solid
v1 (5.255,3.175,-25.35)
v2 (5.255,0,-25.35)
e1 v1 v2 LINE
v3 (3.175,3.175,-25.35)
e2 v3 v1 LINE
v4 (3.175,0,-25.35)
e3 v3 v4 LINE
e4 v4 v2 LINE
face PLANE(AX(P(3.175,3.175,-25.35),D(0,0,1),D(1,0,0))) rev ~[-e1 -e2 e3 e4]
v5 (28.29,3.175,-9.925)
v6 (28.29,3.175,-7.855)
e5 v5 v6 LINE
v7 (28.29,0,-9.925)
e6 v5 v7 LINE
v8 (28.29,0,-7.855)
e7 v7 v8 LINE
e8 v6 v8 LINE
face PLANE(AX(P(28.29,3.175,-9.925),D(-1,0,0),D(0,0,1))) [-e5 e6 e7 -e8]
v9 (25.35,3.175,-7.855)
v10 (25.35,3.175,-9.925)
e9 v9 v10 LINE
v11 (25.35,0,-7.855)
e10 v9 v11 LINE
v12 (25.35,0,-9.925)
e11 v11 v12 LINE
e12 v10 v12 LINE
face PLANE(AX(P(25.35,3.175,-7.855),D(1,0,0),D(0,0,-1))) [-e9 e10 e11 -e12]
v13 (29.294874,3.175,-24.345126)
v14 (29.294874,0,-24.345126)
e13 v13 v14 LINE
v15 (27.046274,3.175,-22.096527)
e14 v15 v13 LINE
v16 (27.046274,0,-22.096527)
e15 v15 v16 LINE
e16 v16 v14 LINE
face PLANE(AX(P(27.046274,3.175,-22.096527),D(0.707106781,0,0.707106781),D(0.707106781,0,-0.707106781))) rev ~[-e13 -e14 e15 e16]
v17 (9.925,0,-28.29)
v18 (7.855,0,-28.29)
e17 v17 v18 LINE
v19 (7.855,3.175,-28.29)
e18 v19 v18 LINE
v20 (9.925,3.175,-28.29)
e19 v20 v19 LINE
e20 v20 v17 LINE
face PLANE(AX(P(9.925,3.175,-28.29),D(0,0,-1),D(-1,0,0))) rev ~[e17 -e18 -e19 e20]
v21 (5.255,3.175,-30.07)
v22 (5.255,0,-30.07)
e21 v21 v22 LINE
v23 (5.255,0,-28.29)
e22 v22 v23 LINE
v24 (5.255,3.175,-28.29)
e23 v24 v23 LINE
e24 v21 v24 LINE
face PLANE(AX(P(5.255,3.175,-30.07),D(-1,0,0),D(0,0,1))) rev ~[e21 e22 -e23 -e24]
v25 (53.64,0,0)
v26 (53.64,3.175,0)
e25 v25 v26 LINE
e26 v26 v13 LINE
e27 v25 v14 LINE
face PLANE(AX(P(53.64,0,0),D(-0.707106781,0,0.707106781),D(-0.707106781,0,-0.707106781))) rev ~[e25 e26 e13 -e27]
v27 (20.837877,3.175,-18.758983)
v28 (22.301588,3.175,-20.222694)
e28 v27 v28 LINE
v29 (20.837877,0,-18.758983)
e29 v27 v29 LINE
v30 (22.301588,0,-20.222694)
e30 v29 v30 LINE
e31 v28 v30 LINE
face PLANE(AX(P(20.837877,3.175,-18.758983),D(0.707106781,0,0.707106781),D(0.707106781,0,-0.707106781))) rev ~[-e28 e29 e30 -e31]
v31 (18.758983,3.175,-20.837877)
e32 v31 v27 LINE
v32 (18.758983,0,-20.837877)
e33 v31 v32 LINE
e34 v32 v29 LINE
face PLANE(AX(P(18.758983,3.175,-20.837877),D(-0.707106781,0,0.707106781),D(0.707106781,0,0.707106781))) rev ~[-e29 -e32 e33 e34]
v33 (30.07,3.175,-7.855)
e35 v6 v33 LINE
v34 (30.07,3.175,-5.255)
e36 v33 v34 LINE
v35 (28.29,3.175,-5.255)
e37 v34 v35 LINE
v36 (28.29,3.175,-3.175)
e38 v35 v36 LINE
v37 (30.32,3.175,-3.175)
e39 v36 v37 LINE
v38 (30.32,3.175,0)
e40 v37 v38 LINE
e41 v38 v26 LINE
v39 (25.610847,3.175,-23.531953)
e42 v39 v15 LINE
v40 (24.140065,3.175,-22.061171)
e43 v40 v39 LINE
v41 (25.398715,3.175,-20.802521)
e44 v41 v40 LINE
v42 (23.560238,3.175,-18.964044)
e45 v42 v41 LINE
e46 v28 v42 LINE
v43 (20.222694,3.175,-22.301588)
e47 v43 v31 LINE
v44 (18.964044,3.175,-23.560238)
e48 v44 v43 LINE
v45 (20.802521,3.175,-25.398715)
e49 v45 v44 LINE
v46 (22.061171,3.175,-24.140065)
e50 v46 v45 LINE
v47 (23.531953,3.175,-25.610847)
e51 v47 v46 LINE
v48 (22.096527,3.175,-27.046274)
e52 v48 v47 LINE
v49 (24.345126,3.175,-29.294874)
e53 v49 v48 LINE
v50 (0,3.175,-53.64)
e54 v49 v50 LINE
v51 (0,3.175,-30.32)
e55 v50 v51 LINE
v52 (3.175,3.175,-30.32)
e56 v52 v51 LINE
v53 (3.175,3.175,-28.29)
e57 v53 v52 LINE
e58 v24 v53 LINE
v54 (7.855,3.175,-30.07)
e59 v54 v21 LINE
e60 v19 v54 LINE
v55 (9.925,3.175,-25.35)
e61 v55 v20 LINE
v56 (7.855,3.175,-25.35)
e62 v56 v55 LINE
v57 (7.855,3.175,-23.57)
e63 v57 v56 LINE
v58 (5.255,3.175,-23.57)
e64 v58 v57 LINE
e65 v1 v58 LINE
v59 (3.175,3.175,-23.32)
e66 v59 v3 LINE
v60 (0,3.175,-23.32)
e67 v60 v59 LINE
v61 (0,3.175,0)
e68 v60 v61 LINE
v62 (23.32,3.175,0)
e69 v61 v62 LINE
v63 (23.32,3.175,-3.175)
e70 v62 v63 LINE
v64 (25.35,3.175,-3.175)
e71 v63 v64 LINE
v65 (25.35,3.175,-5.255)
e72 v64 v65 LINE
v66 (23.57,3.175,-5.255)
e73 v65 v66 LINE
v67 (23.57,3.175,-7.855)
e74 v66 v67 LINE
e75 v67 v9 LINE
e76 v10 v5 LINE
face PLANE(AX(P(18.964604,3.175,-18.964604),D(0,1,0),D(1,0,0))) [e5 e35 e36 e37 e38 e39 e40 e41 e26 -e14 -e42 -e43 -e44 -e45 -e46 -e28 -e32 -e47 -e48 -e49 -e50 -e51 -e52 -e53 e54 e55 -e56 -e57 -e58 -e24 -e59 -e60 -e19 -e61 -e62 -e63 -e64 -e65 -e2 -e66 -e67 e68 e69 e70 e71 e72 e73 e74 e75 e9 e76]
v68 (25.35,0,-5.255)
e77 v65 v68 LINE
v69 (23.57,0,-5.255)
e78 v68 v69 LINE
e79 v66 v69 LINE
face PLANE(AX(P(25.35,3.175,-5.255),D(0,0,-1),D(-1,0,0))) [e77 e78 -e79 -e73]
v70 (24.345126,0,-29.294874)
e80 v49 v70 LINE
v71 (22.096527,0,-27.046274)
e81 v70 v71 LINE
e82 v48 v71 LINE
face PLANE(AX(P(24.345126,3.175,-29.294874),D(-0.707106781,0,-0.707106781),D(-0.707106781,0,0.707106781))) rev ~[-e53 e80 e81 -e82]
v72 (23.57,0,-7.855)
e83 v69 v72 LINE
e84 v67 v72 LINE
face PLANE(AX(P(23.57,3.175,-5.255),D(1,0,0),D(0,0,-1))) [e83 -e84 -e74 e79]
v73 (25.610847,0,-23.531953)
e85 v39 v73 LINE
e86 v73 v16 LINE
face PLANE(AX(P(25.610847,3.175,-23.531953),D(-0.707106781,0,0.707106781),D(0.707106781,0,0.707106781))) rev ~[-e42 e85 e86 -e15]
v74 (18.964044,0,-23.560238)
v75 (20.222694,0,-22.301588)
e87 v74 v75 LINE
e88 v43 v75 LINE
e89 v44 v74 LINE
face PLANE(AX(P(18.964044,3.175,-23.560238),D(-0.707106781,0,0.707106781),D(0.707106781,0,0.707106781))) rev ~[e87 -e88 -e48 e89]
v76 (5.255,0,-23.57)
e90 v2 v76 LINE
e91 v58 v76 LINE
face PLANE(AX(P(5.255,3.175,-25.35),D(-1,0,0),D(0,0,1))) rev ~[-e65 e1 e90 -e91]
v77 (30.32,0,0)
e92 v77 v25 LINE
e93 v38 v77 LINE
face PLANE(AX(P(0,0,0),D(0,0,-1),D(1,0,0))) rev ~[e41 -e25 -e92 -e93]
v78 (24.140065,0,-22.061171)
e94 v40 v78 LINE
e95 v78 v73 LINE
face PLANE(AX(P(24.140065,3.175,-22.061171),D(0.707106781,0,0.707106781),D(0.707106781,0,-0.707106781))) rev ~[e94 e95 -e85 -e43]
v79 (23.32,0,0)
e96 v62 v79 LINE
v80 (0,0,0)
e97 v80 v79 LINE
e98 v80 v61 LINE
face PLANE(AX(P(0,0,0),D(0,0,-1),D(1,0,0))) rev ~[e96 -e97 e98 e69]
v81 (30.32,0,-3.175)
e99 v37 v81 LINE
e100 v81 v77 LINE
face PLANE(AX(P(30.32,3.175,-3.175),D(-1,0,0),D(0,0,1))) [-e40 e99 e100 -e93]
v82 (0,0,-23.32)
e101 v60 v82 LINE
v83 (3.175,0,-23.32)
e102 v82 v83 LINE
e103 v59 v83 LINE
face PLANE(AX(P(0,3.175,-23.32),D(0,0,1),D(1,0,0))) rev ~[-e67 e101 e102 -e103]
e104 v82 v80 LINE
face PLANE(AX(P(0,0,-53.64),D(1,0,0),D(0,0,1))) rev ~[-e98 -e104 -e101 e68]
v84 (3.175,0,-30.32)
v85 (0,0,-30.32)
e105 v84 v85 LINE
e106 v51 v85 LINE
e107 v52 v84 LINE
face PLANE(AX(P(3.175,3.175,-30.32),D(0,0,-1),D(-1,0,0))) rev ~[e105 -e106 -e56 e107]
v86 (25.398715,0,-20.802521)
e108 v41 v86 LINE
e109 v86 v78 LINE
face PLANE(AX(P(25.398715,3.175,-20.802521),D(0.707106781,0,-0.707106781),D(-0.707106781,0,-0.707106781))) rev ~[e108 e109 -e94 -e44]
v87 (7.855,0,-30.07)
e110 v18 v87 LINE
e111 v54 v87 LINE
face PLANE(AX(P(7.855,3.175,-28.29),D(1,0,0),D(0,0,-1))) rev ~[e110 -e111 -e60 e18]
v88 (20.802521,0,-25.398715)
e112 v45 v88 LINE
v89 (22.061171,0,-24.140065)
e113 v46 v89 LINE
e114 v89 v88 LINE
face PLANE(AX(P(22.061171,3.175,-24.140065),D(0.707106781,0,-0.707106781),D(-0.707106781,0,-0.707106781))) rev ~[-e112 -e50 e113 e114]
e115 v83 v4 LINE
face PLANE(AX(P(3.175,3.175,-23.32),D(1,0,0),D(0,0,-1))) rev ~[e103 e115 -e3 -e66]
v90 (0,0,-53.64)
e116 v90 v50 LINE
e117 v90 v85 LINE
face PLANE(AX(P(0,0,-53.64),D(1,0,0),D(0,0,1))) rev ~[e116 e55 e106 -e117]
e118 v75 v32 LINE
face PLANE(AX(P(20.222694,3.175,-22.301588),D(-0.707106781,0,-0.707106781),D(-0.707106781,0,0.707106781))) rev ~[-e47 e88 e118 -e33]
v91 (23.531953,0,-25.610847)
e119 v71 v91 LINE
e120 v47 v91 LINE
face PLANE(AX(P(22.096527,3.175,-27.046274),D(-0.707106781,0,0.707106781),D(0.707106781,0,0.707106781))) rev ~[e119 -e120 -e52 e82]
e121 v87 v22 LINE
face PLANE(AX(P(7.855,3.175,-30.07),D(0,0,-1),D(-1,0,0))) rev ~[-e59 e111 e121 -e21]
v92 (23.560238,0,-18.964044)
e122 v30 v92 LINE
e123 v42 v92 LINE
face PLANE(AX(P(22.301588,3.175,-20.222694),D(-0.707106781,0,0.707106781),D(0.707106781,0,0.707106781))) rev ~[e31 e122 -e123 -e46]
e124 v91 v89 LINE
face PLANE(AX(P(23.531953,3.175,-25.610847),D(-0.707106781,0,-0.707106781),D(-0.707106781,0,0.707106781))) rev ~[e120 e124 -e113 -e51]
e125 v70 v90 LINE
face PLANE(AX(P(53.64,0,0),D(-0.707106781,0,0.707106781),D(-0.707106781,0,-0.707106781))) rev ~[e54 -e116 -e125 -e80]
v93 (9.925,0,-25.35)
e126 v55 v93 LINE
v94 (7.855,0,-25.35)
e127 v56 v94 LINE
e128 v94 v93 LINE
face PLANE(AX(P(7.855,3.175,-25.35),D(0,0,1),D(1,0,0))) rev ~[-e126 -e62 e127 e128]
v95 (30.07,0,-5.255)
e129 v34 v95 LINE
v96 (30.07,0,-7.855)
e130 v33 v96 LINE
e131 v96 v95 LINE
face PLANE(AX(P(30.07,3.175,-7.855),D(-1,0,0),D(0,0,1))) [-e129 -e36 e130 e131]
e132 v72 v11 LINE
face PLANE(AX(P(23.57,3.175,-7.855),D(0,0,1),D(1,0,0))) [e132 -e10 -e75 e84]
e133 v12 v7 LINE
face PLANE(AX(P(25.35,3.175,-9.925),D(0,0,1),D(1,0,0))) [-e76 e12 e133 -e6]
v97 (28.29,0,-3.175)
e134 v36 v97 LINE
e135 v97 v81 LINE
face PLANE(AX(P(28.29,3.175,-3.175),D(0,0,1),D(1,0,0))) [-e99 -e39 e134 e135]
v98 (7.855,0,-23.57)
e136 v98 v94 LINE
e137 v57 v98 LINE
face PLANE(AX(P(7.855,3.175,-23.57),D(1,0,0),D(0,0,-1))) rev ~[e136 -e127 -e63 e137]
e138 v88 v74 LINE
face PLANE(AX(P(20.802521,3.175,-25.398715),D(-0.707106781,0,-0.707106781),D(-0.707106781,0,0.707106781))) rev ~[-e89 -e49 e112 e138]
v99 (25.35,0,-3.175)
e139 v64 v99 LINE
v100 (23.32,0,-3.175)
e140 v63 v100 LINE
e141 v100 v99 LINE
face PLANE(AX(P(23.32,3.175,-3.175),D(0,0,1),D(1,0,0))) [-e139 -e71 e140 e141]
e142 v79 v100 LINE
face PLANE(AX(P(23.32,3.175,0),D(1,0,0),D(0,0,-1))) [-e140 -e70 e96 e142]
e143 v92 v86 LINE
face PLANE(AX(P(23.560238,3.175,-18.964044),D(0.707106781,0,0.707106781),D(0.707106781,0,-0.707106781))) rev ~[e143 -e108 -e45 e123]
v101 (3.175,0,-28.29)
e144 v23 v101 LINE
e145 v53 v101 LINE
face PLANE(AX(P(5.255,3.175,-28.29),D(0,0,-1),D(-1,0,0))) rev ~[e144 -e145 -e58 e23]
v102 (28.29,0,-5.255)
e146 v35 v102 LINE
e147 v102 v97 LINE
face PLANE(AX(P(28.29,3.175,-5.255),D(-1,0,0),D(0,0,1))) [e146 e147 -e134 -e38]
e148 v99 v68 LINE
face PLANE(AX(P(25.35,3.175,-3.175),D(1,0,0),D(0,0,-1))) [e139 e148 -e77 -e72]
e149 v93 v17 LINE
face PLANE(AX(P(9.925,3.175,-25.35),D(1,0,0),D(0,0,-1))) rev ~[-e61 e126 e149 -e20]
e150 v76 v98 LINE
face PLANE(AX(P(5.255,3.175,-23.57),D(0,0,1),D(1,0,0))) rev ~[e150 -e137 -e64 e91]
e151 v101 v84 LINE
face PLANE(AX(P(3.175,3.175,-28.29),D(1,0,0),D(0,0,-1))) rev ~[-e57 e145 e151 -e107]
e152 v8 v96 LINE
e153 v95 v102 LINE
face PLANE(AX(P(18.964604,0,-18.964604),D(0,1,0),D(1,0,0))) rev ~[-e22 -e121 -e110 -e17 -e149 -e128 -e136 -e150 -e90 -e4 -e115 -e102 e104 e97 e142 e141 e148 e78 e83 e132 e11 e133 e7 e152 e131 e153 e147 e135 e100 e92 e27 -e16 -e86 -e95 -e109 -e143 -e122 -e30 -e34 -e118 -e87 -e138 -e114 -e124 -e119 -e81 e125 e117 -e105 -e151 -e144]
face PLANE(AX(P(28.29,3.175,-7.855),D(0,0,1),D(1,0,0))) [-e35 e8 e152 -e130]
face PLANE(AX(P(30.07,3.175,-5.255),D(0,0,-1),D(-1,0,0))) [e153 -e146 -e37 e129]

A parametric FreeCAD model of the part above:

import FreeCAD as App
import Part
import Sketcher
Q = App.Units.Quantity


def add_polygon(sketch, points):
    """Adds a closed chain of lines whose ends are joined by coincident constraints."""
    first, n = sketch.GeometryCount, len(points)
    for a, b in zip(points, points[1:] + points[:1]):
        sketch.addGeometry(Part.LineSegment(App.Vector(*a, 0), App.Vector(*b, 0)), False)
    for i in range(n):
        sketch.addConstraint(Sketcher.Constraint("Coincident", first + i, 2, first + (i + 1) % n, 1))

doc = App.newDocument("Part")
body = doc.addObject("PartDesign::Body", "Body")

# Sketch on XZ plane
sketch1 = body.newObject("Sketcher::SketchObject", "Sketch")
sketch1.AttachmentSupport = (doc.getObject("XZ_Plane"), [""])
sketch1.MapMode = "FlatFace"
add_polygon(sketch1, [(0, 0), (53.64, 0), (0, -53.64)])  # lines 0-2
sketch1.addConstraint([
    Sketcher.Constraint("Horizontal", 0),
    Sketcher.Constraint("Vertical", 2),
    Sketcher.Constraint("Coincident", 2, 2, -1, 1),
    Sketcher.Constraint("Equal", 0, 2),
    Sketcher.Constraint("DistanceX", 0, 1, 0, 2, 53.64),
])
pad1 = body.newObject("PartDesign::Pad", "Pad")
pad1.Profile = sketch1
pad1.Length = 3.175
pad1.Reversed = True

# Sketch on XZ plane
sketch2 = body.newObject("Sketcher::SketchObject", "Sketch001")
sketch2.AttachmentSupport = (doc.getObject("XZ_Plane"), [""])
sketch2.MapMode = "FlatFace"
sketch2.AttachmentOffset = App.Placement(App.Vector(0, 0, -3.175), App.Rotation())
add_polygon(sketch2, [(27.046274, -22.096527), (29.294874, -24.345126), (24.345126, -29.294874), (22.096527, -27.046274), (23.531953, -25.610847), (22.061171, -24.140065), (20.802521, -25.398715), (18.964044, -23.560238), (20.222694, -22.301588), (18.758983, -20.837877), (20.837877, -18.758983), (22.301588, -20.222694), (23.560238, -18.964044), (25.398715, -20.802521), (24.140065, -22.061171), (25.610847, -23.531953)])  # lines 0-15
add_polygon(sketch2, [(3.175, -30.32), (0, -30.32), (0, -23.32), (3.175, -23.32), (3.175, -25.35), (5.255, -25.35), (5.255, -23.57), (7.855, -23.57), (7.855, -25.35), (9.925, -25.35), (9.925, -28.29), (7.855, -28.29), (7.855, -30.07), (5.255, -30.07), (5.255, -28.29), (3.175, -28.29)])  # lines 16-31
add_polygon(sketch2, [(30.32, 0), (30.32, -3.175), (28.29, -3.175), (28.29, -5.255), (30.07, -5.255), (30.07, -7.855), (28.29, -7.855), (28.29, -9.925), (25.35, -9.925), (25.35, -7.855), (23.57, -7.855), (23.57, -5.255), (25.35, -5.255), (25.35, -3.175), (23.32, -3.175), (23.32, 0)])  # lines 32-47
sketch2.addConstraint([
    Sketcher.Constraint("Horizontal", 16),
    Sketcher.Constraint("Vertical", 17),
    Sketcher.Constraint("Horizontal", 18),
    Sketcher.Constraint("Vertical", 19),
    Sketcher.Constraint("Horizontal", 20),
    Sketcher.Constraint("Vertical", 21),
    Sketcher.Constraint("Horizontal", 22),
    Sketcher.Constraint("Vertical", 23),
    Sketcher.Constraint("Horizontal", 24),
    Sketcher.Constraint("Vertical", 25),
    Sketcher.Constraint("Horizontal", 26),
    Sketcher.Constraint("Vertical", 27),
    Sketcher.Constraint("Horizontal", 28),
    Sketcher.Constraint("Vertical", 29),
    Sketcher.Constraint("Horizontal", 30),
    Sketcher.Constraint("Vertical", 31),
    Sketcher.Constraint("Vertical", 32),
    Sketcher.Constraint("Horizontal", 33),
    Sketcher.Constraint("Vertical", 34),
    Sketcher.Constraint("Horizontal", 35),
    Sketcher.Constraint("Vertical", 36),
    Sketcher.Constraint("Horizontal", 37),
    Sketcher.Constraint("Vertical", 38),
    Sketcher.Constraint("Horizontal", 39),
    Sketcher.Constraint("Vertical", 40),
    Sketcher.Constraint("Horizontal", 41),
    Sketcher.Constraint("Vertical", 42),
    Sketcher.Constraint("Horizontal", 43),
    Sketcher.Constraint("Vertical", 44),
    Sketcher.Constraint("Horizontal", 45),
    Sketcher.Constraint("Vertical", 46),
    Sketcher.Constraint("Horizontal", 47),
    Sketcher.Constraint("PointOnObject", 16, 2, -2),
    Sketcher.Constraint("PointOnObject", 46, 2, -1),
    Sketcher.Constraint("Perpendicular", 0, 1),
    Sketcher.Constraint("Perpendicular", 1, 2),
    Sketcher.Constraint("Perpendicular", 2, 3),
    Sketcher.Constraint("Perpendicular", 3, 4),
    Sketcher.Constraint("Perpendicular", 4, 5),
    Sketcher.Constraint("Perpendicular", 5, 6),
    Sketcher.Constraint("Perpendicular", 6, 7),
    Sketcher.Constraint("Perpendicular", 7, 8),
    Sketcher.Constraint("Perpendicular", 8, 9),
    Sketcher.Constraint("Perpendicular", 9, 10),
    Sketcher.Constraint("Perpendicular", 10, 11),
    Sketcher.Constraint("Perpendicular", 11, 12),
    Sketcher.Constraint("Perpendicular", 12, 13),
    Sketcher.Constraint("Perpendicular", 13, 14),
    Sketcher.Constraint("Perpendicular", 14, 15),
    Sketcher.Constraint("Horizontal", 20, 2, 23, 2),
    Sketcher.Constraint("Horizontal", 26, 2, 29, 2),
    Sketcher.Constraint("Horizontal", 37, 2, 40, 2),
    Sketcher.Constraint("Horizontal", 35, 2, 42, 2),
    Sketcher.Constraint("Horizontal", 33, 2, 44, 2),
    Sketcher.Constraint("Vertical", 23, 2, 26, 2),
    Sketcher.Constraint("Vertical", 21, 2, 28, 2),
    Sketcher.Constraint("Vertical", 19, 2, 30, 2),
    Sketcher.Constraint("Vertical", 34, 2, 37, 2),
    Sketcher.Constraint("Vertical", 40, 2, 43, 2),
    Sketcher.Constraint("Equal", 37, 41),
    Sketcher.Constraint("Equal", 33, 45),
    Sketcher.Constraint("Equal", 47, 17),
    Sketcher.Constraint("Equal", 45, 19),
    Sketcher.Constraint("Equal", 43, 21),
    Sketcher.Constraint("Equal", 39, 25),
    Sketcher.Constraint("Equal", 23, 27),
    Sketcher.Constraint("Equal", 18, 32),
    Sketcher.Constraint("Equal", 30, 34),
    Sketcher.Constraint("Equal", 28, 36),
    Sketcher.Constraint("Equal", 26, 38),
    Sketcher.Constraint("Equal", 0, 2),
    Sketcher.Constraint("Equal", 5, 7),
    Sketcher.Constraint("Equal", 8, 10),
    Sketcher.Constraint("Equal", 7, 11),
    Sketcher.Constraint("Equal", 6, 12),
    Sketcher.Constraint("Equal", 11, 13),
    Sketcher.Constraint("Equal", 3, 15),
    Sketcher.Constraint("DistanceX", 47, 1, 47, 2, 7.0),
    Sketcher.Constraint("Angle", 0, Q("-45 deg")),
    Sketcher.Constraint("Distance", 1, 7.0),
    Sketcher.Constraint("DistanceX", 22, 1, 22, 2, 2.6),
    Sketcher.Constraint("Distance", 6, 2.6),
    Sketcher.Constraint("DistanceX", 20, 1, 20, 2, 2.08),
    Sketcher.Constraint("DistanceX", 24, 1, 24, 2, 2.07),
    Sketcher.Constraint("DistanceX", 33, 2, 33, 1, 2.03),
    Sketcher.Constraint("DistanceX", 35, 1, 35, 2, 1.78),
    Sketcher.Constraint("Distance", 0, 3.18),
    Sketcher.Constraint("Distance", 3, 2.03),
    Sketcher.Constraint("Distance", 4, 2.08),
    Sketcher.Constraint("Distance", 5, 1.78),
    Sketcher.Constraint("Distance", 8, 2.07),
    Sketcher.Constraint("DistanceX", 16, 2, 16, 1, 3.175),
    Sketcher.Constraint("DistanceY", 16, 2, -1, 1, 30.32),
    Sketcher.Constraint("DistanceX", -1, 1, 32, 2, 30.32),
    Sketcher.Constraint("DistanceX", -1, 1, 4, 2, 22.061171),
    Sketcher.Constraint("DistanceY", 12, 2, -1, 1, 20.802521),
])
pocket1 = body.newObject("PartDesign::Pocket", "Pocket")
pocket1.Profile = sketch2
pocket1.Length = 10
pocket1.Reversed = True

doc.recompute()
